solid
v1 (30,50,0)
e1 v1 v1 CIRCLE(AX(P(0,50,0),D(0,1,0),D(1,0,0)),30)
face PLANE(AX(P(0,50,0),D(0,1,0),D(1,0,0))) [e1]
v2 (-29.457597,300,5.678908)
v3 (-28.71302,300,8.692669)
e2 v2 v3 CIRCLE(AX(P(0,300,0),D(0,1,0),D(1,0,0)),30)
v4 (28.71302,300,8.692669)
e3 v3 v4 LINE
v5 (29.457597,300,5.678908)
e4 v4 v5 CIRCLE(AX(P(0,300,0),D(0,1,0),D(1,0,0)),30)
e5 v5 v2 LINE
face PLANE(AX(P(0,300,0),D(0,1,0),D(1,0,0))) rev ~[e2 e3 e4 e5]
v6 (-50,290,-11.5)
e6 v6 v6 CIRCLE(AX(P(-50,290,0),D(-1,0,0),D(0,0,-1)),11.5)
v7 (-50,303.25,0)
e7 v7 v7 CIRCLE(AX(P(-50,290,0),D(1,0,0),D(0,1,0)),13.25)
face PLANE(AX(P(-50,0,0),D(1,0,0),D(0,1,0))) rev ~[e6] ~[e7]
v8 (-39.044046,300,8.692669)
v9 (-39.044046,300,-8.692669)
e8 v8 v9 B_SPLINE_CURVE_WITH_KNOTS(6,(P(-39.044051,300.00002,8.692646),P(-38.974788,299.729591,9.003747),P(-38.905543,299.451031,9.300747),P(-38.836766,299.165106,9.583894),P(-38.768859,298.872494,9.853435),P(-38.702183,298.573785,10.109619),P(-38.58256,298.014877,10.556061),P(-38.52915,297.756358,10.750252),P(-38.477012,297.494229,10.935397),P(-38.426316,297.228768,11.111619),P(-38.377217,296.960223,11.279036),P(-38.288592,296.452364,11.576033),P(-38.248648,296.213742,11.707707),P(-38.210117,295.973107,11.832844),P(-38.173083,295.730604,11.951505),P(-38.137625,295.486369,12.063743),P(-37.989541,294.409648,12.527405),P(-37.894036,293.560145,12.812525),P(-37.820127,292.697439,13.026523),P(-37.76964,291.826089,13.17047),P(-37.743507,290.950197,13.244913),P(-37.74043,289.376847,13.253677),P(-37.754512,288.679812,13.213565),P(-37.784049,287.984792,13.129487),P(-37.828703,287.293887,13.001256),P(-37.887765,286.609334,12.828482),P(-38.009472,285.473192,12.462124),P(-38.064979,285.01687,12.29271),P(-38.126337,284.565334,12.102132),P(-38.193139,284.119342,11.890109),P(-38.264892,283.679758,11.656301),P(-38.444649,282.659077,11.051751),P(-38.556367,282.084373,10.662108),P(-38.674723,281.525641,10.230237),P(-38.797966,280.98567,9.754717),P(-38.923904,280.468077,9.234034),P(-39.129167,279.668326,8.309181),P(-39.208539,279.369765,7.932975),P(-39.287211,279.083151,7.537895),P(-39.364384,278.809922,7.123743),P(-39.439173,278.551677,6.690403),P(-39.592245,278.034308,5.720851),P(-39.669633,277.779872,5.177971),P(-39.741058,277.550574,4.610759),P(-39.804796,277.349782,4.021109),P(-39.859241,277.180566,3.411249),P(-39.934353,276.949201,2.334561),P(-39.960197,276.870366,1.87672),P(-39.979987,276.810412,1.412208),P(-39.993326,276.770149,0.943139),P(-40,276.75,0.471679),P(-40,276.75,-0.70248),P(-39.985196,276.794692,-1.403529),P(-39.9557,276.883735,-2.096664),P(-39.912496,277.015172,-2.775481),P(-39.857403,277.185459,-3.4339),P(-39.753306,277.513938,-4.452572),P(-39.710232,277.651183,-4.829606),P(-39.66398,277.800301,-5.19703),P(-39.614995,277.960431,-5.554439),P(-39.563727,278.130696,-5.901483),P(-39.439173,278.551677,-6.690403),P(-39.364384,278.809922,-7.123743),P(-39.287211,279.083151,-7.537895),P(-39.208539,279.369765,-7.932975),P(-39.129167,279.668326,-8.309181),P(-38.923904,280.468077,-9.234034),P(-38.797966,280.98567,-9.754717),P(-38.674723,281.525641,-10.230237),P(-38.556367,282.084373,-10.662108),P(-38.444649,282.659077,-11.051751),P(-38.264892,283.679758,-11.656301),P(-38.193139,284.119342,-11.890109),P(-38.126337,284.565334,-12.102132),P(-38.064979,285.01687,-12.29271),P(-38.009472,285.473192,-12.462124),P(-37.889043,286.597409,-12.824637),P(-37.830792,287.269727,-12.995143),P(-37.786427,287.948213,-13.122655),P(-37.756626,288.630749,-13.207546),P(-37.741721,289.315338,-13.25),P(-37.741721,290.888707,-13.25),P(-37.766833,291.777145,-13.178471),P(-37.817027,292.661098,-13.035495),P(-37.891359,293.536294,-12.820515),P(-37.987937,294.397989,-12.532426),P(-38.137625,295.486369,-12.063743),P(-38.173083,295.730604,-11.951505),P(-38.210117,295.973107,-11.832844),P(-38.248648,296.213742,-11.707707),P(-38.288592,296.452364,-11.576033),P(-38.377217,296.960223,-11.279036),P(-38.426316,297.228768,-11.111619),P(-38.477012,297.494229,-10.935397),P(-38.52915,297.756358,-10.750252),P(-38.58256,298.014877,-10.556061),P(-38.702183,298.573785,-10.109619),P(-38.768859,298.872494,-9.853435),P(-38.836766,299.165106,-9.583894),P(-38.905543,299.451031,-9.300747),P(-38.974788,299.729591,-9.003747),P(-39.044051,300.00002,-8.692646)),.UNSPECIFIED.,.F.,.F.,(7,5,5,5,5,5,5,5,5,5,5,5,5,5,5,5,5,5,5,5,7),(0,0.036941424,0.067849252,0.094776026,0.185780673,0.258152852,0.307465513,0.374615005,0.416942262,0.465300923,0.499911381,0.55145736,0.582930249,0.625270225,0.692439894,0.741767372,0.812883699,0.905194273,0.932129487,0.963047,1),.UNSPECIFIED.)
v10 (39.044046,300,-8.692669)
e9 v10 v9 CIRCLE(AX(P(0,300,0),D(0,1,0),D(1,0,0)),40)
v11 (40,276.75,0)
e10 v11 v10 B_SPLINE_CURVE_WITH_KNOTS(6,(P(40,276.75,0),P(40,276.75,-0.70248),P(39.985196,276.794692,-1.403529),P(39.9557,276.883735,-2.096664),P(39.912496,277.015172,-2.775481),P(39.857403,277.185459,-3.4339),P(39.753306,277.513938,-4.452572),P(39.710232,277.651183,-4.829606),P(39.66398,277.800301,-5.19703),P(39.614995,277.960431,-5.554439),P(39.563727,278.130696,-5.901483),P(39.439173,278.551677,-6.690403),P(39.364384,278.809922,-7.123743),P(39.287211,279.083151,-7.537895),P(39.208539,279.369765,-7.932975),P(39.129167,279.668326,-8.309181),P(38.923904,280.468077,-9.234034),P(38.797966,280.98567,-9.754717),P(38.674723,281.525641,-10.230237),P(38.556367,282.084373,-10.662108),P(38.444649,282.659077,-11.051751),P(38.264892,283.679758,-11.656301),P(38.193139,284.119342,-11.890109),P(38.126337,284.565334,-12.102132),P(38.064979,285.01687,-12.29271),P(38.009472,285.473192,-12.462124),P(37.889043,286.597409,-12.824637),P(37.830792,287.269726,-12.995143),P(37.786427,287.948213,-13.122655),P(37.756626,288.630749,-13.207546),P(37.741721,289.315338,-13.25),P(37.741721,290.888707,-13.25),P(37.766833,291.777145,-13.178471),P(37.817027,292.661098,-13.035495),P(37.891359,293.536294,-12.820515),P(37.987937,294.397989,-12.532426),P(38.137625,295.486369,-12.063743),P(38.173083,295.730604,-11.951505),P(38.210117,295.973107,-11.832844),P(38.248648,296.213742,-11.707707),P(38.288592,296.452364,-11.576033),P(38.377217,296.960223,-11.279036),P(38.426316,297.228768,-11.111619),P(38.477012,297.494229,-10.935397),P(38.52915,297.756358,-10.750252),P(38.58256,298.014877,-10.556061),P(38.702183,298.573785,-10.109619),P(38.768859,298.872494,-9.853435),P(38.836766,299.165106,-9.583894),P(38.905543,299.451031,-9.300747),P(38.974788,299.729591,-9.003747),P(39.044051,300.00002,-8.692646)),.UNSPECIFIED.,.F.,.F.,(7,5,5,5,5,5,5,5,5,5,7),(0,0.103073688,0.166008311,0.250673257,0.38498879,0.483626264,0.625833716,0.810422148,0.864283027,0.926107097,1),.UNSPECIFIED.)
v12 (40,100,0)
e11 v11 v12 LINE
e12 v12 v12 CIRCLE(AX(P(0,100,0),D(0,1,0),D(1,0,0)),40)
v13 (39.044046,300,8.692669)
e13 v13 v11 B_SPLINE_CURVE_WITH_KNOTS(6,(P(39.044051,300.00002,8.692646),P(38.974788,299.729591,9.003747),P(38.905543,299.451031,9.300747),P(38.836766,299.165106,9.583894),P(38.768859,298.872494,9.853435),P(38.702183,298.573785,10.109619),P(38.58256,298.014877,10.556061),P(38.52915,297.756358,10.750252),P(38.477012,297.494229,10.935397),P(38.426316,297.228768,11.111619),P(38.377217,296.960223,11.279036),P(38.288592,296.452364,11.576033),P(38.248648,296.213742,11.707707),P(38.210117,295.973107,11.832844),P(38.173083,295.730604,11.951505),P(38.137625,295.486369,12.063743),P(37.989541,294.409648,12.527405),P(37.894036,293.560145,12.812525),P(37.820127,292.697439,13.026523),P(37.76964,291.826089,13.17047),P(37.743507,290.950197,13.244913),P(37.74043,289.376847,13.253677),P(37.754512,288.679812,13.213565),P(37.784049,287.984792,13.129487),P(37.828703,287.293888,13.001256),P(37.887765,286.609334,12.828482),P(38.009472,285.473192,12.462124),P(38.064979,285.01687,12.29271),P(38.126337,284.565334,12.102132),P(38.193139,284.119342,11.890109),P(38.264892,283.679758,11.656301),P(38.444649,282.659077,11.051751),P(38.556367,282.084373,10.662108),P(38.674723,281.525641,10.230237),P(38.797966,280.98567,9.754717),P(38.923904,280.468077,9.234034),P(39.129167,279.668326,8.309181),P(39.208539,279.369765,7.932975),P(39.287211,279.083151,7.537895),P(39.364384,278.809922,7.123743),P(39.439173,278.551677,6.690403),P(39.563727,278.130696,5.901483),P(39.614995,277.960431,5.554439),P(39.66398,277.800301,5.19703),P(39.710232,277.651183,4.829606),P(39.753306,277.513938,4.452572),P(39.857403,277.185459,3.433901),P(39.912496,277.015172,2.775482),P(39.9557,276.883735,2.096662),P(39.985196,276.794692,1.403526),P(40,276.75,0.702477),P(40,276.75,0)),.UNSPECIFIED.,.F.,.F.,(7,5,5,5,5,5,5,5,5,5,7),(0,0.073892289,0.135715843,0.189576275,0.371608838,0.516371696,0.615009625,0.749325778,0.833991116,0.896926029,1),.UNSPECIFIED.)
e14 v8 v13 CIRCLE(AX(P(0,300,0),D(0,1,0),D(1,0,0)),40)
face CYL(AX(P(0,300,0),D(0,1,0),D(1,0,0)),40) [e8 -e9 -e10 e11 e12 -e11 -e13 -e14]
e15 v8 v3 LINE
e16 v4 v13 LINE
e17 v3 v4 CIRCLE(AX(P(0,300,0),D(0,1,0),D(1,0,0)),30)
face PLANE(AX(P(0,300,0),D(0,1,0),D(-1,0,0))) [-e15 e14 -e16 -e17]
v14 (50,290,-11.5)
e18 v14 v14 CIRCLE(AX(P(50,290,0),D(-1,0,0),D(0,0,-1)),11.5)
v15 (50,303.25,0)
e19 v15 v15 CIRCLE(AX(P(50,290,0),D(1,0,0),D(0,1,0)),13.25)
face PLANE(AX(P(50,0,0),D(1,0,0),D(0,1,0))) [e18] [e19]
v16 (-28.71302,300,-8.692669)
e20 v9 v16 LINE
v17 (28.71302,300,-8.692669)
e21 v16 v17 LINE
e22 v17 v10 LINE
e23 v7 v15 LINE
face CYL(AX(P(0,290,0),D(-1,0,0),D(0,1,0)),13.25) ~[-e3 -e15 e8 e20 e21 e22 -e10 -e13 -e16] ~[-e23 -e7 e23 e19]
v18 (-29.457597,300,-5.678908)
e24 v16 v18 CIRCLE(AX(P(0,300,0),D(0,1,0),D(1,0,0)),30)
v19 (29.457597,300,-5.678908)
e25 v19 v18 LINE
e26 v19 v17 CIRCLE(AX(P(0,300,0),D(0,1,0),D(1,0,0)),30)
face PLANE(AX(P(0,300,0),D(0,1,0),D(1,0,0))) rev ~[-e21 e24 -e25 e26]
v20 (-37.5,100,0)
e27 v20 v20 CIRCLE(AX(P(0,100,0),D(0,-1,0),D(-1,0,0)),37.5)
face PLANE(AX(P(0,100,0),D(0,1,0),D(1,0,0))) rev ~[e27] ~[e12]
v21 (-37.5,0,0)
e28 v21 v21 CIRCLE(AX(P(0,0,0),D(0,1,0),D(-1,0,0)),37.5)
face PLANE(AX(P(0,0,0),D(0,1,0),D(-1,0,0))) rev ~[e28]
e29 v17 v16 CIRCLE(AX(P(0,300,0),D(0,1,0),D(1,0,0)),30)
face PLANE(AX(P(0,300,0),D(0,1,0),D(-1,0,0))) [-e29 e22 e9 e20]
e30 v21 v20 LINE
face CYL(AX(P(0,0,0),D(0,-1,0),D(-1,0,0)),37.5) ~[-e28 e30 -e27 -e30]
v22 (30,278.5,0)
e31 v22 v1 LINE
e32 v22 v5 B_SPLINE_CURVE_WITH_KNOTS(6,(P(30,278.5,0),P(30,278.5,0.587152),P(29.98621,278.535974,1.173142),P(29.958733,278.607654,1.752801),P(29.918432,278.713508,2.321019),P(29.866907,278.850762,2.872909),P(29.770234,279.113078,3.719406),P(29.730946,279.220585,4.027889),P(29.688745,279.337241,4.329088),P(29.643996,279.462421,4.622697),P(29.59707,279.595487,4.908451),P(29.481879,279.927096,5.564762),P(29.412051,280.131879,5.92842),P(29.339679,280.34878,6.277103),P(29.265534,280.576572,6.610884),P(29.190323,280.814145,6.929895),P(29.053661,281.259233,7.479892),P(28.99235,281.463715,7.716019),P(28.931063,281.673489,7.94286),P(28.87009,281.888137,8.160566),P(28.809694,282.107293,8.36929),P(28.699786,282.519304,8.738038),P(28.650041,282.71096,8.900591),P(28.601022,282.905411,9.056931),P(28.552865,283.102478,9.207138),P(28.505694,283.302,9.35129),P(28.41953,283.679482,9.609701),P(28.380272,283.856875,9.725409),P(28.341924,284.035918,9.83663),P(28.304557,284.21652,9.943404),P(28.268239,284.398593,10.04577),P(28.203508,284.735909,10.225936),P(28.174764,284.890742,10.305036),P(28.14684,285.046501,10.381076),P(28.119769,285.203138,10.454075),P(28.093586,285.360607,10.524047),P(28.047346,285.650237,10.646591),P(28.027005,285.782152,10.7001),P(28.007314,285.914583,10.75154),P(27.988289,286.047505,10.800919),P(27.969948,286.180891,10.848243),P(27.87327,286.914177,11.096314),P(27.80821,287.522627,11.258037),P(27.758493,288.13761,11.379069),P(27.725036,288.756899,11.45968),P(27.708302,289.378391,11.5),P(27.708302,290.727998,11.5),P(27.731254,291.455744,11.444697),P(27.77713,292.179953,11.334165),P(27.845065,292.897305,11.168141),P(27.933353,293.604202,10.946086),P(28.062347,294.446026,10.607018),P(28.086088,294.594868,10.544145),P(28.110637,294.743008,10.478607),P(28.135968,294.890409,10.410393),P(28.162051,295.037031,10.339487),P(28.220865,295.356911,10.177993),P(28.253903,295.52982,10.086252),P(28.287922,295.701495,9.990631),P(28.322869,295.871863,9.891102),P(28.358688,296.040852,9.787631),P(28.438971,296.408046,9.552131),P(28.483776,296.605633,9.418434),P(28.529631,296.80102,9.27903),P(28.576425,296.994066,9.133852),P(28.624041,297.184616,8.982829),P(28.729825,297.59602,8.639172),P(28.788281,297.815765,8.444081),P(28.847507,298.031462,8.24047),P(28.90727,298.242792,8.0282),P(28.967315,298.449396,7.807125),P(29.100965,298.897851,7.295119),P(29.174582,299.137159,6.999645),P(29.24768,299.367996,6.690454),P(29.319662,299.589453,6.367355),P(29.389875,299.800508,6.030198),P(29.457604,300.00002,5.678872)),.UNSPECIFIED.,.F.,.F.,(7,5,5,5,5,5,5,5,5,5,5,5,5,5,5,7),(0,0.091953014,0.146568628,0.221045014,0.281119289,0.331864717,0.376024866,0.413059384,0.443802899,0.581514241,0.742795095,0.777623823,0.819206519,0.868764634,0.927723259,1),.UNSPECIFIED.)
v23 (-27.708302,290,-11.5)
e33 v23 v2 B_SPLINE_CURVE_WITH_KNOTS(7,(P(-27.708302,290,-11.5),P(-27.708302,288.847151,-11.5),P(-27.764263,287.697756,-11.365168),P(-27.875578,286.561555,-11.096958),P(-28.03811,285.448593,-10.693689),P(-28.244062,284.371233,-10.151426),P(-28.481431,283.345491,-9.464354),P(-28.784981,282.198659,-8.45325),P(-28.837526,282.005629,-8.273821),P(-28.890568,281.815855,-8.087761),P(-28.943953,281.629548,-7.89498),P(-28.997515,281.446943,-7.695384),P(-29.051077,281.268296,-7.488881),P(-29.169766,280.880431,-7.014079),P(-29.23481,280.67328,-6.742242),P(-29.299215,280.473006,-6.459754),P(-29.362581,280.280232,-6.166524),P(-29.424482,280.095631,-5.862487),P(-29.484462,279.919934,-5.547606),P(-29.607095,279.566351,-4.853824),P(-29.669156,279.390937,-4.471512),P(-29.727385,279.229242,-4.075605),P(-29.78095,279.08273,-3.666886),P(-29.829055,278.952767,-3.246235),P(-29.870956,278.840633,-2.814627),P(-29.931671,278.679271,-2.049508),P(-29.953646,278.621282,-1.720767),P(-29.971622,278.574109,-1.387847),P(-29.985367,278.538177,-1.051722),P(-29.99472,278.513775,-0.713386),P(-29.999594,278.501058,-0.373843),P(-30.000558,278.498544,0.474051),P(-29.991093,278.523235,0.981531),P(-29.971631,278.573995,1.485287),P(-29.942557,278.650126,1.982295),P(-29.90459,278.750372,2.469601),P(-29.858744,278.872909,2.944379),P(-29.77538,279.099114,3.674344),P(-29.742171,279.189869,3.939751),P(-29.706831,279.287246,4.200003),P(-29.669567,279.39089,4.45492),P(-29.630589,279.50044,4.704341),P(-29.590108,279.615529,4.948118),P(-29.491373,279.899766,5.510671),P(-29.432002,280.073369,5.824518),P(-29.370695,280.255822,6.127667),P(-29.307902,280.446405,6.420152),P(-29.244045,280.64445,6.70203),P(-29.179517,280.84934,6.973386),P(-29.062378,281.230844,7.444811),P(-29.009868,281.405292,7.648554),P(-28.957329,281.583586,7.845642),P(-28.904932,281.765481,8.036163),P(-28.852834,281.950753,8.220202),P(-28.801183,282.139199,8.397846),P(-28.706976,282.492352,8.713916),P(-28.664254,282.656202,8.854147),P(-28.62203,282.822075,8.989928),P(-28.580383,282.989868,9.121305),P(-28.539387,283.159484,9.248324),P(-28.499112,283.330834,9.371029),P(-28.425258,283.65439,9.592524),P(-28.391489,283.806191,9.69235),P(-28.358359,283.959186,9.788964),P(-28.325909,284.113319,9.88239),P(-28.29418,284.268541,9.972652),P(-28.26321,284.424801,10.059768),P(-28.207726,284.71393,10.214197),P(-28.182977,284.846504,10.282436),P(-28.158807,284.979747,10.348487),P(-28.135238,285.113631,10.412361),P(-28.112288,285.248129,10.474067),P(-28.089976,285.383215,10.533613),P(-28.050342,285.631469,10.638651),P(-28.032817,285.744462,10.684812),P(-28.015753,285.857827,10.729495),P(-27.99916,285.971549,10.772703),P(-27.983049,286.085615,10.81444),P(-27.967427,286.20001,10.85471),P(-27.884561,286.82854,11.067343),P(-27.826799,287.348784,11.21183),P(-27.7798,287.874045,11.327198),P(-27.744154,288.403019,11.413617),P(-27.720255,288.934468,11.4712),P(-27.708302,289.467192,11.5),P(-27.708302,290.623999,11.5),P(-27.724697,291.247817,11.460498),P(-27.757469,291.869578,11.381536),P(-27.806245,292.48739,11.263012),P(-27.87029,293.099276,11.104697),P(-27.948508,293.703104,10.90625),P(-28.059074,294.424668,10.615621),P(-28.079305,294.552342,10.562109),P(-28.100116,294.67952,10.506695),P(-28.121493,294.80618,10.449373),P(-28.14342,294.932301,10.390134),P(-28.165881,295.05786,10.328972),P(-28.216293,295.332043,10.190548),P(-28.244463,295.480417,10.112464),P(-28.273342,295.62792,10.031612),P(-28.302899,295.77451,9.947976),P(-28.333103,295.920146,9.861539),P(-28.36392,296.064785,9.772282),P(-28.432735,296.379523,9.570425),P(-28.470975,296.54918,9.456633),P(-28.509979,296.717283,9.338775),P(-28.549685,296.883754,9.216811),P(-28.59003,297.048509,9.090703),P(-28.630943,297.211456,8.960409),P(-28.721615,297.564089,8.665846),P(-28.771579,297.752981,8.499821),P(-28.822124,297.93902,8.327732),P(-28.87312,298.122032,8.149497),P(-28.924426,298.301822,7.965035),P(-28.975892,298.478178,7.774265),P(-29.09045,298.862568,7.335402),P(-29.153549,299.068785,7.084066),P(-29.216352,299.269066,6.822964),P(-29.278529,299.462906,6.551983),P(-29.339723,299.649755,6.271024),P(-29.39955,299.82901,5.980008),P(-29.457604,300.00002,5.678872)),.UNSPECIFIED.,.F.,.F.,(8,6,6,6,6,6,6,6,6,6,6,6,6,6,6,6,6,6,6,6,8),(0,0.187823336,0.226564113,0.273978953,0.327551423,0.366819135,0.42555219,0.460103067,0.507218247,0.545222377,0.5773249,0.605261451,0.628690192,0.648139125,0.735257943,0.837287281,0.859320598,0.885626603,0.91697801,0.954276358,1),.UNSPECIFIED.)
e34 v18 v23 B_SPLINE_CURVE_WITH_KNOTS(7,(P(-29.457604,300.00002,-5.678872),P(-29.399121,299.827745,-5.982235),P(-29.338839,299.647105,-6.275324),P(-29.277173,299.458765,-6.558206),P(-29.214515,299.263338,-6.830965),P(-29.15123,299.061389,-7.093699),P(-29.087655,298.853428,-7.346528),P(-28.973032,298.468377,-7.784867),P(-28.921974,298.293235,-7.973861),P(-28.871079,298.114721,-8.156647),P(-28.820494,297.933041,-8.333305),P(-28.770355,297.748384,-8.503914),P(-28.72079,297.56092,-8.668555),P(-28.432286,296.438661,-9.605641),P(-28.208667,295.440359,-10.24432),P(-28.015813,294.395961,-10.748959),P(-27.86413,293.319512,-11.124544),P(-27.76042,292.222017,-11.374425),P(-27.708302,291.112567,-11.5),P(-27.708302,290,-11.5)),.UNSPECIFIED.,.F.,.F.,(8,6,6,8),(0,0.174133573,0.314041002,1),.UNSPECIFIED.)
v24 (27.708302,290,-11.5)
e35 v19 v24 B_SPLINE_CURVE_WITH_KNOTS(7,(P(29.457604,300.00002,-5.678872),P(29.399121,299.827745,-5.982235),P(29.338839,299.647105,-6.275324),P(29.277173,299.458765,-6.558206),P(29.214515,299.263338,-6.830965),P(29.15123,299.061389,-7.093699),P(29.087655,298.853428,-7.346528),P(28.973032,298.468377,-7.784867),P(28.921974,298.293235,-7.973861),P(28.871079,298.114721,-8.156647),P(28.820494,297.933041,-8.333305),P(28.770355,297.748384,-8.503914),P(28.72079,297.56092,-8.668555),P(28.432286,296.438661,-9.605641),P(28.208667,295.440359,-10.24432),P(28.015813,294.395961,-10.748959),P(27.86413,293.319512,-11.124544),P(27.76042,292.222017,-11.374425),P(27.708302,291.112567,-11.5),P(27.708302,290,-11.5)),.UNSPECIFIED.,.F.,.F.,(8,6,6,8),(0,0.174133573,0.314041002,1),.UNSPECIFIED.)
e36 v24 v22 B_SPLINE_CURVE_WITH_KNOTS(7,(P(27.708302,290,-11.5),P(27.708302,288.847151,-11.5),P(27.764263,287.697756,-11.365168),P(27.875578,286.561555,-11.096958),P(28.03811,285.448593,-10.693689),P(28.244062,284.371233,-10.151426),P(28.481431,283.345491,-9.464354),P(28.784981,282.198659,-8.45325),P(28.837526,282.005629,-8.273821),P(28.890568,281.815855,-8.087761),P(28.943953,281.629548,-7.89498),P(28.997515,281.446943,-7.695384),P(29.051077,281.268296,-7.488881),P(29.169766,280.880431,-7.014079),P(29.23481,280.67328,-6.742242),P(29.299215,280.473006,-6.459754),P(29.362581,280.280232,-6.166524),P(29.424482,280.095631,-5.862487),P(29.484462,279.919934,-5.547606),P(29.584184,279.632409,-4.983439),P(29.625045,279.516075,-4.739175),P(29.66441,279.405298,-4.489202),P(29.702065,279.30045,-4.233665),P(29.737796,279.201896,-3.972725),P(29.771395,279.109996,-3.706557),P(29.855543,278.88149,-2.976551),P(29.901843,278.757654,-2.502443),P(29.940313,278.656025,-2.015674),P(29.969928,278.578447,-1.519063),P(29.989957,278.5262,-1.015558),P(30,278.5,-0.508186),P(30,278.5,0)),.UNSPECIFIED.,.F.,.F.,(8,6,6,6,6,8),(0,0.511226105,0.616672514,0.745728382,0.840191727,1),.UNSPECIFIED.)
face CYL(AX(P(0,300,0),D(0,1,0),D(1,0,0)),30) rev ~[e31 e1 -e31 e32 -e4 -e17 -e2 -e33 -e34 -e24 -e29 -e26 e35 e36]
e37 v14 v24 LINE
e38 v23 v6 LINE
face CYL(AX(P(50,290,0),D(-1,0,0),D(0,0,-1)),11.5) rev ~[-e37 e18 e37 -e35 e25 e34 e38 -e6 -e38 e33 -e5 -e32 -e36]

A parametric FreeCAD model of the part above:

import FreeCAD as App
import Part
import Sketcher
from FreeCAD import Vector

doc = App.newDocument("Part")
params = doc.addObject("Spreadsheet::Sheet", "Params")
for row, (alias, value) in enumerate([
    ("sketch1_diameter", "75 mm"),
    ("pad1_length", "300 mm"),
    ("sketch2_diameter", "26.5 mm"),
    ("pad2_length", "100 mm"),
    ("sketch3_diameter", "80 mm"),
    ("pad3_length", "200 mm"),
    ("sketch4_diameter", "60 mm"),
    ("pocket1_length", "250 mm"),
    ("sketch5_diameter", "23 mm"),
    ("hole_diameter", "23 mm"),
], start=1):
    params.set(f"A{row}", alias)
    params.set(f"B{row}", "=" + value)
    params.setAlias(f"B{row}", alias)

body = doc.addObject("PartDesign::Body", "Body")

# Sketch on XZ plane
sketch1 = body.newObject("Sketcher::SketchObject", "Sketch")
sketch1.AttachmentSupport = (doc.getObject("XZ_Plane"), [""])
sketch1.MapMode = "FlatFace"
sketch1.addGeometry(Part.Circle(Vector(0, 0, 0), Vector(0, 0, 1), 37.5), False)
sketch1.addConstraint([
    Sketcher.Constraint("Coincident", 0, 3, -1, 1),
    Sketcher.Constraint("Diameter", 0, 75.0),
])
sketch1.setExpression("Constraints[1]", "Params.sketch1_diameter")
pad1 = body.newObject("PartDesign::Pad", "Pad")
pad1.Profile = sketch1
pad1.setExpression("Length", "Params.pad1_length")
pad1.Reversed = True

# Sketch on YZ plane
sketch2 = body.newObject("Sketcher::SketchObject", "Sketch001")
sketch2.AttachmentSupport = (doc.getObject("YZ_Plane"), [""])
sketch2.MapMode = "FlatFace"
sketch2.addGeometry(Part.Circle(Vector(290, 0, 0), Vector(0, 0, 1), 13.25), False)
sketch2.addConstraint([
    Sketcher.Constraint("PointOnObject", 0, 3, -1),
    Sketcher.Constraint("Diameter", 0, 26.5),
    Sketcher.Constraint("DistanceX", -1, 1, 0, 3, 290.0),
])
sketch2.setExpression("Constraints[1]", "Params.sketch2_diameter")
pad2 = body.newObject("PartDesign::Pad", "Pad001")
pad2.Profile = sketch2
pad2.setExpression("Length", "Params.pad2_length")
pad2.Midplane = True

# Sketch on XZ plane
sketch3 = body.newObject("Sketcher::SketchObject", "Sketch002")
sketch3.AttachmentSupport = (doc.getObject("XZ_Plane"), [""])
sketch3.MapMode = "FlatFace"
sketch3.AttachmentOffset = App.Placement(Vector(0, 0, -300), App.Rotation())
sketch3.addGeometry(Part.Circle(Vector(0, 0, 0), Vector(0, 0, 1), 40), False)
sketch3.addConstraint([
    Sketcher.Constraint("Coincident", 0, 3, -1, 1),
    Sketcher.Constraint("Diameter", 0, 80.0),
])
sketch3.setExpression("Constraints[1]", "Params.sketch3_diameter")
pad3 = body.newObject("PartDesign::Pad", "Pad002")
pad3.Profile = sketch3
pad3.setExpression("Length", "Params.pad3_length")

# Sketch on XZ plane
sketch4 = body.newObject("Sketcher::SketchObject", "Sketch003")
sketch4.AttachmentSupport = (doc.getObject("XZ_Plane"), [""])
sketch4.MapMode = "FlatFace"
sketch4.AttachmentOffset = App.Placement(Vector(0, 0, -300), App.Rotation())
sketch4.addGeometry(Part.Circle(Vector(0, 0, 0), Vector(0, 0, 1), 30), False)
sketch4.addConstraint([
    Sketcher.Constraint("Coincident", 0, 3, -1, 1),
    Sketcher.Constraint("Diameter", 0, 60.0),
])
sketch4.setExpression("Constraints[1]", "Params.sketch4_diameter")
pocket1 = body.newObject("PartDesign::Pocket", "Pocket")
pocket1.Profile = sketch4
pocket1.setExpression("Length", "Params.pocket1_length")
pocket1.Reversed = True

# Sketch on YZ plane
sketch5 = body.newObject("Sketcher::SketchObject", "Sketch004")
sketch5.AttachmentSupport = (doc.getObject("YZ_Plane"), [""])
sketch5.MapMode = "FlatFace"
sketch5.AttachmentOffset = App.Placement(Vector(0, 0, 50), App.Rotation())
sketch5.addGeometry(Part.Circle(Vector(290, 0, 0), Vector(0, 0, 1), 11.5), False)
sketch5.addConstraint([
    Sketcher.Constraint("PointOnObject", 0, 3, -1),
    Sketcher.Constraint("Diameter", 0, 23.0),
    Sketcher.Constraint("DistanceX", -1, 1, 0, 3, 290.0),
])
sketch5.setExpression("Constraints[1]", "Params.sketch5_diameter")
doc.recompute()
hole = body.newObject("PartDesign::Hole", "Hole")
hole.Profile = sketch5
hole.ThreadType = "None"
hole.setExpression("Diameter", "Params.hole_diameter")
hole.DepthType = "ThroughAll"

doc.recompute()
